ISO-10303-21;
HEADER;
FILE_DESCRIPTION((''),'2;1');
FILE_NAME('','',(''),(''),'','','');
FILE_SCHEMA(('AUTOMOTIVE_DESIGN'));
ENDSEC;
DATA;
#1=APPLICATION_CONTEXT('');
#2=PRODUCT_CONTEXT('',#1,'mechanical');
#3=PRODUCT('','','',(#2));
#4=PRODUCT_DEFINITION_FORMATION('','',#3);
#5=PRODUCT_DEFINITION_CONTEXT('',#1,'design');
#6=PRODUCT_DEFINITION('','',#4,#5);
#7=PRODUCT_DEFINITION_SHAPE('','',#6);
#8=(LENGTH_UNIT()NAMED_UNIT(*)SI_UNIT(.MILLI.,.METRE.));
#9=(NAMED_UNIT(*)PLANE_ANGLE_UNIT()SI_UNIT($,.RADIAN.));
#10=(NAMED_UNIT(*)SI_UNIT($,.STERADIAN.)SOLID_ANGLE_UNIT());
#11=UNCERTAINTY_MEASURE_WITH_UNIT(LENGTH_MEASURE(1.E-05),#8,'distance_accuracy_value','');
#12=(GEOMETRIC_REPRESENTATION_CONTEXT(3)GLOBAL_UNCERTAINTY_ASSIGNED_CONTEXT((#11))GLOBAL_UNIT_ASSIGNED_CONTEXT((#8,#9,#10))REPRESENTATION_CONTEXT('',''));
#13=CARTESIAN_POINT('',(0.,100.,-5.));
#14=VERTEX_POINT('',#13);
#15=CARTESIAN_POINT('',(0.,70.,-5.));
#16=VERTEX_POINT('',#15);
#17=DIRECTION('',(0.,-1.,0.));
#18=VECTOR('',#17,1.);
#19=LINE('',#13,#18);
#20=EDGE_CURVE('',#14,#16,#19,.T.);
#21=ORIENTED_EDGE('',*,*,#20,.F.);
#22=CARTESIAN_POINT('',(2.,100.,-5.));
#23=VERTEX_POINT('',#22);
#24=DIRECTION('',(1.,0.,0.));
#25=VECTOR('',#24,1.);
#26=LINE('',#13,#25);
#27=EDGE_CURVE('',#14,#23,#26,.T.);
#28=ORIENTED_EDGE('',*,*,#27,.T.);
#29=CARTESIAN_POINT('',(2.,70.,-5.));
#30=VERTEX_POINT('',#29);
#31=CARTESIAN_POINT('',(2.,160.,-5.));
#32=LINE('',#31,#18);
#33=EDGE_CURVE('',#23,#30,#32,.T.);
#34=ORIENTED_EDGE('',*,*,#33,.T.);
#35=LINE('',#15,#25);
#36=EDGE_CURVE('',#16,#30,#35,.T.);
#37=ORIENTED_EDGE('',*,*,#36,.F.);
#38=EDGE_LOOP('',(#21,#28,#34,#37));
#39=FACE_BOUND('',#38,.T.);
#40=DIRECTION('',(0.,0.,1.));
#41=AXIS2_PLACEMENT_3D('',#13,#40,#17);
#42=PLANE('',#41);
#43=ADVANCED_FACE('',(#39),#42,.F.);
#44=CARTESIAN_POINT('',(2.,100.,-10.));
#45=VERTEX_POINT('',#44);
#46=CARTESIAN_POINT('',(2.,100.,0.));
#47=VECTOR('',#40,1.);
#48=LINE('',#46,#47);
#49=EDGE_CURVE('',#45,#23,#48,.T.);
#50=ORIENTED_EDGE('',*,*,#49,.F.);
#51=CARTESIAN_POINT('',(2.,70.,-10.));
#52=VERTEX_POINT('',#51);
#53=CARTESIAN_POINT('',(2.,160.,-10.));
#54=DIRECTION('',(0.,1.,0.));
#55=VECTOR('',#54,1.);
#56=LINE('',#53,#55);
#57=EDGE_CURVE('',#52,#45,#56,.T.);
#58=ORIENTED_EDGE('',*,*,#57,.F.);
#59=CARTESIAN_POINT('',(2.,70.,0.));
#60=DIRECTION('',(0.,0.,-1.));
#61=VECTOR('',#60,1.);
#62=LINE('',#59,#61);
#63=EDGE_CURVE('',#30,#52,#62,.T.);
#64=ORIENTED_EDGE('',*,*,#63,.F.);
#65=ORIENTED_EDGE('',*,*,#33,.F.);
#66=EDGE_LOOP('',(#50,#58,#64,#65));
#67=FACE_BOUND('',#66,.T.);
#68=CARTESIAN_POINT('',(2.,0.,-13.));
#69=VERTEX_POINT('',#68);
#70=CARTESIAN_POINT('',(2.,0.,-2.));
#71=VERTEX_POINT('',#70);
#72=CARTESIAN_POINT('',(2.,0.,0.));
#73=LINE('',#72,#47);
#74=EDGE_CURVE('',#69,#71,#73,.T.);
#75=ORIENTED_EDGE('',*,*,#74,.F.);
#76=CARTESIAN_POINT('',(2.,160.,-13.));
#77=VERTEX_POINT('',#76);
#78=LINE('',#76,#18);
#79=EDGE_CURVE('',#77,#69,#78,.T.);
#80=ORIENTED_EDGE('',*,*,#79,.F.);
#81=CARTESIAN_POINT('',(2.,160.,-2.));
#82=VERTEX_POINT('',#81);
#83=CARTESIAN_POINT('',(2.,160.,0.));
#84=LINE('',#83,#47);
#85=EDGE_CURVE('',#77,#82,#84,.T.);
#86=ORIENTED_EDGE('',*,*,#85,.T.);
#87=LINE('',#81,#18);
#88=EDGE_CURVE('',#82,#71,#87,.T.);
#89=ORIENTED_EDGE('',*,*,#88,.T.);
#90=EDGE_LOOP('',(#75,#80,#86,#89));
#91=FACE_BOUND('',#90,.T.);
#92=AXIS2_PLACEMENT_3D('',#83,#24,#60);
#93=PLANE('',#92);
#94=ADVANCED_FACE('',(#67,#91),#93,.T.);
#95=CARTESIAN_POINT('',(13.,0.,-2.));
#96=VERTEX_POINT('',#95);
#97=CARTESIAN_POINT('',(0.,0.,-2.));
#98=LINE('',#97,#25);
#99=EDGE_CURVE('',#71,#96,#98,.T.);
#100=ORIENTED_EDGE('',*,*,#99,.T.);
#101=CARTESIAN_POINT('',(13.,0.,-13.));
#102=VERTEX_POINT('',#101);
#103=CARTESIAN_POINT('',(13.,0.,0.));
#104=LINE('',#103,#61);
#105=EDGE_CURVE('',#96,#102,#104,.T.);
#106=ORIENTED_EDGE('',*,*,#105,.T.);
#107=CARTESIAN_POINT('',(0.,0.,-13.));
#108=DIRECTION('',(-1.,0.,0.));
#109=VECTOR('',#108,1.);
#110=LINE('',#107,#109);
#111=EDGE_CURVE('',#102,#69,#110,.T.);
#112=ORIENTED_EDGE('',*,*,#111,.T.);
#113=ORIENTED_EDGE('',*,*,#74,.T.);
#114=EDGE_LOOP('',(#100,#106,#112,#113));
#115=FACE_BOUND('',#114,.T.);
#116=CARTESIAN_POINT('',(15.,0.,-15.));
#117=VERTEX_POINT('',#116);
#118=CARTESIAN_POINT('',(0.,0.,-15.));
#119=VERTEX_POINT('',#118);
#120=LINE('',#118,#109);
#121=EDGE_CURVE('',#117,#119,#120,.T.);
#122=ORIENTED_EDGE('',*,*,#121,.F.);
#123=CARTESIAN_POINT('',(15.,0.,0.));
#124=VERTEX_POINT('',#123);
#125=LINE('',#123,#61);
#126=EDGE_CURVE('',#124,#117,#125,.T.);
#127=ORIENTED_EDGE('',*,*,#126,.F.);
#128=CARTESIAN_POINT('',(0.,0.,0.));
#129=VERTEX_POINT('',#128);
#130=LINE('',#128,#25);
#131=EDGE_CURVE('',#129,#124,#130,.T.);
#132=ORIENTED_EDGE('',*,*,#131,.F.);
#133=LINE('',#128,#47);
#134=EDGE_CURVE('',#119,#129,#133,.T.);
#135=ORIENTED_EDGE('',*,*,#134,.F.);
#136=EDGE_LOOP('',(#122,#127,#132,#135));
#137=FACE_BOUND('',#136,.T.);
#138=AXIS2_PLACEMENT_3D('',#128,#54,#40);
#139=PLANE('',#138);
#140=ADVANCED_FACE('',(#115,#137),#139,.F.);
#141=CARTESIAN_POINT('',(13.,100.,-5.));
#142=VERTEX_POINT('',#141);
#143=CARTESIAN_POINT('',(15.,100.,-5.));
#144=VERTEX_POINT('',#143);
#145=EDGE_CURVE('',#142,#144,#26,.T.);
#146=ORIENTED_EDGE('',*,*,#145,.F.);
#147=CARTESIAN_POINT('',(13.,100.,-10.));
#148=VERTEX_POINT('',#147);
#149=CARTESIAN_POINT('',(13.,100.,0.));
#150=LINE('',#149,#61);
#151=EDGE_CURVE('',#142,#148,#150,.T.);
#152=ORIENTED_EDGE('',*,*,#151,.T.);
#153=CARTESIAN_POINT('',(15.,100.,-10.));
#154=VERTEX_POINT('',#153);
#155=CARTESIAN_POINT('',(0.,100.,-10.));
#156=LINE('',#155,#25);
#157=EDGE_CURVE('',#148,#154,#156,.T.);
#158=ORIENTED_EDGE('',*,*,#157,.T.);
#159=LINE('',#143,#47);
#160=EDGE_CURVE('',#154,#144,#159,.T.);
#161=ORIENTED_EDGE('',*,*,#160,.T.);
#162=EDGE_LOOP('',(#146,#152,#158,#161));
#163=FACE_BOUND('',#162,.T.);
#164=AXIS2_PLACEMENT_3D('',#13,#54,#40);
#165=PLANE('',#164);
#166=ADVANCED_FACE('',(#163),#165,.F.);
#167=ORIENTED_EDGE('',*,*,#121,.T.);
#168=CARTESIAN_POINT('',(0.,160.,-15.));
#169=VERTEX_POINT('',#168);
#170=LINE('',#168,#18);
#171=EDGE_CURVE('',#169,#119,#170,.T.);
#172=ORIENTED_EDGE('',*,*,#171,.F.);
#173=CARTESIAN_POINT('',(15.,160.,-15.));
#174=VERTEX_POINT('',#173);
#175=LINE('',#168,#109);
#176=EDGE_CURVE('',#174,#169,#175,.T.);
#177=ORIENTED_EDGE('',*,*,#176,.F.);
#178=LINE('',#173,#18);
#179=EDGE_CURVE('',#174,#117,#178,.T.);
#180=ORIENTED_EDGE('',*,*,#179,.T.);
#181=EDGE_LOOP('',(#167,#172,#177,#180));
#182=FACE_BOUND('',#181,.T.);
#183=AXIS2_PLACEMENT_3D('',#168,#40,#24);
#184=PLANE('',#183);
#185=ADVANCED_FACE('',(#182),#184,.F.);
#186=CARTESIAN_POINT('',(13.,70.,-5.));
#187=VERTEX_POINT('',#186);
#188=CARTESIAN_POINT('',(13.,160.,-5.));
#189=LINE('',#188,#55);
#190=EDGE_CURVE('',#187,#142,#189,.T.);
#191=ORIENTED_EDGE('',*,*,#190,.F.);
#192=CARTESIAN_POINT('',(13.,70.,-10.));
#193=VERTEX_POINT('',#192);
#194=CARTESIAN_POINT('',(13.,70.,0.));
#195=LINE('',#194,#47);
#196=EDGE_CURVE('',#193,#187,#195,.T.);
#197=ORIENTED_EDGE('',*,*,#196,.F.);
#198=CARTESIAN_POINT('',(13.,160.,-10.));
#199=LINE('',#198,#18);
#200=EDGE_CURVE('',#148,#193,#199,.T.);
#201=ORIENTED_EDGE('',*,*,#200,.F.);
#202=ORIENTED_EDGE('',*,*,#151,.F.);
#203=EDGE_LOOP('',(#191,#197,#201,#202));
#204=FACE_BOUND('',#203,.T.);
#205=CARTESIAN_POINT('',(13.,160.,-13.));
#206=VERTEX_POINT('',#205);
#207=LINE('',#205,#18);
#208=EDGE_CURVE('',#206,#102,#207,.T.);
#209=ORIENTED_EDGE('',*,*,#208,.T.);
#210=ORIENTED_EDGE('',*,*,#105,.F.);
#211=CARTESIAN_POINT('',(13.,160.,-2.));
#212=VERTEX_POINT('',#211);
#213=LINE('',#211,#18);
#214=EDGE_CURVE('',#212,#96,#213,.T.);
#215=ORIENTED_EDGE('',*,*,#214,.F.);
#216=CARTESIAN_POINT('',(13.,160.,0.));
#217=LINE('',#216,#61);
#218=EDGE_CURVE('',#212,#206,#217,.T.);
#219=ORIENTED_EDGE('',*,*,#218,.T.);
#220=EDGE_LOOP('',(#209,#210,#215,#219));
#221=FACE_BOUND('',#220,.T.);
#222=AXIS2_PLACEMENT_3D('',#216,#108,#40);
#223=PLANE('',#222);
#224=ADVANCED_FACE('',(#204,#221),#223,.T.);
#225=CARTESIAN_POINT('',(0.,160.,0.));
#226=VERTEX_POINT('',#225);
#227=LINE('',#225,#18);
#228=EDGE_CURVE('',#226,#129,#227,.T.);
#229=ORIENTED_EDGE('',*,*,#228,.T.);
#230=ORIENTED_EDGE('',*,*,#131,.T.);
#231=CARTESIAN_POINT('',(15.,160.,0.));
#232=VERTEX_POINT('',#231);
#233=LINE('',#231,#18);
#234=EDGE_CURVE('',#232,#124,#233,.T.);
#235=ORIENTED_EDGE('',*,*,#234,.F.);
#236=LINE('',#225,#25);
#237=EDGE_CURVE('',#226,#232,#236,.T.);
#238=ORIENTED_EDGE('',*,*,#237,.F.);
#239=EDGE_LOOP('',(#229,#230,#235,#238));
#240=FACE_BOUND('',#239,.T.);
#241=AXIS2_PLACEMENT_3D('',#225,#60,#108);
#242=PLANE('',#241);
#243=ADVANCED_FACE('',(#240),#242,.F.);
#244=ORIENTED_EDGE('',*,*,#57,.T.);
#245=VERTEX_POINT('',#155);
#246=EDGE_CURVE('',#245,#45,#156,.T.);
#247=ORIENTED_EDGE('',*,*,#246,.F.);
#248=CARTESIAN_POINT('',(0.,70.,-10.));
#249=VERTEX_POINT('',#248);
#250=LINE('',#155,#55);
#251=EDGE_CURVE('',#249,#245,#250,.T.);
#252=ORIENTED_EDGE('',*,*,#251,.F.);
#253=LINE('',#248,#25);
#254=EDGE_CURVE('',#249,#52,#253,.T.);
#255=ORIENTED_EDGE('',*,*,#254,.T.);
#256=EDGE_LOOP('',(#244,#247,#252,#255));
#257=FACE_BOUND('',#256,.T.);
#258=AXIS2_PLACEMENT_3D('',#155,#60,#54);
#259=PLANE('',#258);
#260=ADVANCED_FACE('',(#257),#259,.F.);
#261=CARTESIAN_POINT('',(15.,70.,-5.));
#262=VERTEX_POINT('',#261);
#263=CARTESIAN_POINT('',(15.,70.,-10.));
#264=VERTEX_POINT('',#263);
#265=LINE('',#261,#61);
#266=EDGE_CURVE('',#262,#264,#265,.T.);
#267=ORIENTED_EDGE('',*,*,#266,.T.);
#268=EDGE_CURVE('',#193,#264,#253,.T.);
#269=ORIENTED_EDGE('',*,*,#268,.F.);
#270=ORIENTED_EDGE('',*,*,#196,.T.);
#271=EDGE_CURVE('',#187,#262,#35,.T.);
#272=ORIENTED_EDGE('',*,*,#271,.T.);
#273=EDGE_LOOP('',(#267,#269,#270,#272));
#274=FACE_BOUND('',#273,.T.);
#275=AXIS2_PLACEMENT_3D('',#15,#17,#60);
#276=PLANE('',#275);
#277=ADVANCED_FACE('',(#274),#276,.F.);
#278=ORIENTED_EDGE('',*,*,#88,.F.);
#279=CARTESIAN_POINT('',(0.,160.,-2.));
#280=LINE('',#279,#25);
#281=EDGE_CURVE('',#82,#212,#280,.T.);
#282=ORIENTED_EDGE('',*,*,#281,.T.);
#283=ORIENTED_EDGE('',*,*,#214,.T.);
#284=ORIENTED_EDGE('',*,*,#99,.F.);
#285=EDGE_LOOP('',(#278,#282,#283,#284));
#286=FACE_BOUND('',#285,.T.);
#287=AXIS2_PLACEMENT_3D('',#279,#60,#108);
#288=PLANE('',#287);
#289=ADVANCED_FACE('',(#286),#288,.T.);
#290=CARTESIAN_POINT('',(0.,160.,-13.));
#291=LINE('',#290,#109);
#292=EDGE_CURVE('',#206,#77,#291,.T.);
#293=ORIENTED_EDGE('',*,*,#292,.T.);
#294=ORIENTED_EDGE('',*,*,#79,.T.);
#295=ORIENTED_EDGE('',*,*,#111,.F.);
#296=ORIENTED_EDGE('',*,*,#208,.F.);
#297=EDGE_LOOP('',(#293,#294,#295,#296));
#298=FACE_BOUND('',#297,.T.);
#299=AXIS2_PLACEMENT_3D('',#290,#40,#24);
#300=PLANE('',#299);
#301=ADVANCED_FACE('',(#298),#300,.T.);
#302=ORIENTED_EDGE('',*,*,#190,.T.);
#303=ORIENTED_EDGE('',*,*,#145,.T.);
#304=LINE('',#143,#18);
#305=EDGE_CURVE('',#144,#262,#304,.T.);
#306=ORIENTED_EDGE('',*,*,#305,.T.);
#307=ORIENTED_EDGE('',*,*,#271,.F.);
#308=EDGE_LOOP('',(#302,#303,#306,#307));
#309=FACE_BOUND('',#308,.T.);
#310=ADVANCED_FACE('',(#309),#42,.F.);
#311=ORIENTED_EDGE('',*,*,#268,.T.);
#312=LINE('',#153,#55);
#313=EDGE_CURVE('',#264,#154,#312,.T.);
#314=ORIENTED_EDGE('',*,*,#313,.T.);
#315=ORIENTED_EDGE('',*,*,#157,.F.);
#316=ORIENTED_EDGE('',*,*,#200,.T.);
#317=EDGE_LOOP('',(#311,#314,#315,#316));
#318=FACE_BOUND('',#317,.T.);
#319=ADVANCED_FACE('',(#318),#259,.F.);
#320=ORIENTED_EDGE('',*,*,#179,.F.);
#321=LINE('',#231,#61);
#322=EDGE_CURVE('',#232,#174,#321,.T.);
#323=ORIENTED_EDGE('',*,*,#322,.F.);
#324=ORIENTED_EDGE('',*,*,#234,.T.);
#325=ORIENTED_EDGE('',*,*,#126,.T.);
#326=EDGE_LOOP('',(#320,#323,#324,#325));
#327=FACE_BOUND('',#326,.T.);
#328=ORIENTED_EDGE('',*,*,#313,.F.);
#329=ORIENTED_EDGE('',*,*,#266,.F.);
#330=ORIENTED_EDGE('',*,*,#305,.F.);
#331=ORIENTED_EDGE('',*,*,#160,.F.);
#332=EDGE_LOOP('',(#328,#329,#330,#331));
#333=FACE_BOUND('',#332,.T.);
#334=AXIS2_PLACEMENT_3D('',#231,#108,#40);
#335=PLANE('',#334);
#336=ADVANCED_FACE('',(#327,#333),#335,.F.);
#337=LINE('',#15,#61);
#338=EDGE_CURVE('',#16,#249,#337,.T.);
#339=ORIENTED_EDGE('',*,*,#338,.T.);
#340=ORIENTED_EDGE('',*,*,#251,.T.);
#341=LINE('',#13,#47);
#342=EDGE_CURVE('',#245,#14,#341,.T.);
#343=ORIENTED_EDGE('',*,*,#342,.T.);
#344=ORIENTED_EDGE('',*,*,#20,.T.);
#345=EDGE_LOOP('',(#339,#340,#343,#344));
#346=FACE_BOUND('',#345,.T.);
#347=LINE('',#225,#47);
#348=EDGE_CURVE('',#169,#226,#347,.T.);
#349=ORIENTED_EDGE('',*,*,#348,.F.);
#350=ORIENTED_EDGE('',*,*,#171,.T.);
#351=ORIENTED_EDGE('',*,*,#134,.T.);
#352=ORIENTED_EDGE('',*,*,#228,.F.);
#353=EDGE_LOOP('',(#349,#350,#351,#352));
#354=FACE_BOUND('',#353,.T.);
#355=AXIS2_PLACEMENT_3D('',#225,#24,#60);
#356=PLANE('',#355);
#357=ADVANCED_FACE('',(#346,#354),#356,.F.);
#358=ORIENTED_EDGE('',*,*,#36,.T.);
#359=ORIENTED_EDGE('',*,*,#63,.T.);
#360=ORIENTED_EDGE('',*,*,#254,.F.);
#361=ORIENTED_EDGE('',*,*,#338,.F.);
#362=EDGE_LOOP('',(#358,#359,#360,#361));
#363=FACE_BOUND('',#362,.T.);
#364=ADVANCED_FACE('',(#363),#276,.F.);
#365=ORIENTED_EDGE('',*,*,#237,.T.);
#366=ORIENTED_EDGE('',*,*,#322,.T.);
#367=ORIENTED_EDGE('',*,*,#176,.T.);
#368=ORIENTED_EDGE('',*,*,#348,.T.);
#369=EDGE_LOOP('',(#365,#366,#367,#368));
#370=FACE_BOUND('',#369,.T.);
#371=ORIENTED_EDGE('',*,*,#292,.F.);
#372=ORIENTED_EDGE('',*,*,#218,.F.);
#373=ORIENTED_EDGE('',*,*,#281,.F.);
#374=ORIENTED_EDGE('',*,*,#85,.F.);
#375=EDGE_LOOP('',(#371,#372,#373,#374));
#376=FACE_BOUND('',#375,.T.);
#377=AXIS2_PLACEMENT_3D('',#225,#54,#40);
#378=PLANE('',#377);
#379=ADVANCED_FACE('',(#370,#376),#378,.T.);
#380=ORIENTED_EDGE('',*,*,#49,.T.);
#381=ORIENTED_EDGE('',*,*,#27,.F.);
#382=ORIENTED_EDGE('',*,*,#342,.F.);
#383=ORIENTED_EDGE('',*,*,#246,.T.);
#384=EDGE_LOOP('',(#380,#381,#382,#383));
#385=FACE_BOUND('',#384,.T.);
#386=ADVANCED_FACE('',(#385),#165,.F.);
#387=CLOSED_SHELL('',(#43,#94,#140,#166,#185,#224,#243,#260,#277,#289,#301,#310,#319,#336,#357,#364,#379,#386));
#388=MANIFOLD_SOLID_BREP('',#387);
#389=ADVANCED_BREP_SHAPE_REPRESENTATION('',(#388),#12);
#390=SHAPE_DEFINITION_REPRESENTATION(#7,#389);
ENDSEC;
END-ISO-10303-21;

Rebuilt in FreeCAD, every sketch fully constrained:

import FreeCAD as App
import Part
import Sketcher
Q = App.Units.Quantity


def add_polygon(sketch, points):
    """Adds a closed chain of lines whose ends are joined by coincident constraints."""
    first, n = sketch.GeometryCount, len(points)
    for a, b in zip(points, points[1:] + points[:1]):
        sketch.addGeometry(Part.LineSegment(App.Vector(*a, 0), App.Vector(*b, 0)), False)
    for i in range(n):
        sketch.addConstraint(Sketcher.Constraint("Coincident", first + i, 2, first + (i + 1) % n, 1))

doc = App.newDocument("Part")
body = doc.addObject("PartDesign::Body", "Body")

# Sketch on XZ plane
sketch1 = body.newObject("Sketcher::SketchObject", "Sketch")
sketch1.AttachmentSupport = (doc.getObject("XZ_Plane"), [""])
sketch1.MapMode = "FlatFace"
add_polygon(sketch1, [(0, -15), (0, 0), (15, 0), (15, -15)])  # lines 0-3
add_polygon(sketch1, [(13, -2), (2, -2), (2, -13), (13, -13)])  # lines 4-7
sketch1.addConstraint(Sketcher.Constraint("Vertical", 0))
sketch1.addConstraint(Sketcher.Constraint("Horizontal", 1))
sketch1.addConstraint(Sketcher.Constraint("Vertical", 2))
sketch1.addConstraint(Sketcher.Constraint("Horizontal", 3))
sketch1.addConstraint(Sketcher.Constraint("Horizontal", 4))
sketch1.addConstraint(Sketcher.Constraint("Vertical", 5))
sketch1.addConstraint(Sketcher.Constraint("Horizontal", 6))
sketch1.addConstraint(Sketcher.Constraint("Vertical", 7))
sketch1.addConstraint(Sketcher.Constraint("Coincident", 0, 2, -1, 1))
sketch1.addConstraint(Sketcher.Constraint("Equal", 3, 0))
sketch1.addConstraint(Sketcher.Constraint("Equal", 6, 5))
sketch1.addConstraint(Sketcher.Constraint("DistanceX", 1, 1, 1, 2, Q("15 mm")))
sketch1.addConstraint(Sketcher.Constraint("DistanceX", 4, 2, 4, 1, Q("11 mm")))
sketch1.addConstraint(Sketcher.Constraint("DistanceX", -1, 1, 4, 2, Q("2 mm")))
sketch1.addConstraint(Sketcher.Constraint("DistanceY", 4, 2, -1, 1, Q("2 mm")))
pad1 = body.newObject("PartDesign::Pad", "Pad")
pad1.Profile = sketch1
pad1.Length = 160
pad1.Reversed = True

# Sketch on YZ plane
sketch2 = body.newObject("Sketcher::SketchObject", "Sketch001")
sketch2.AttachmentSupport = (doc.getObject("YZ_Plane"), [""])
sketch2.MapMode = "FlatFace"
sketch2.AttachmentOffset = App.Placement(App.Vector(0, 0, 15), App.Rotation())
add_polygon(sketch2, [(100, -5), (70, -5), (70, -10), (100, -10)])  # lines 0-3
sketch2.addConstraint(Sketcher.Constraint("Horizontal", 0))
sketch2.addConstraint(Sketcher.Constraint("Vertical", 1))
sketch2.addConstraint(Sketcher.Constraint("Horizontal", 2))
sketch2.addConstraint(Sketcher.Constraint("Vertical", 3))
sketch2.addConstraint(Sketcher.Constraint("DistanceX", 0, 2, 0, 1, Q("30 mm")))
sketch2.addConstraint(Sketcher.Constraint("DistanceY", 1, 2, 1, 1, Q("5 mm")))
sketch2.addConstraint(Sketcher.Constraint("DistanceX", -1, 1, 0, 2, Q("70 mm")))
sketch2.addConstraint(Sketcher.Constraint("DistanceY", 0, 2, -1, 1, Q("5 mm")))
pocket1 = body.newObject("PartDesign::Pocket", "Pocket")
pocket1.Profile = sketch2
pocket1.Type = "ThroughAll"

doc.recompute()
